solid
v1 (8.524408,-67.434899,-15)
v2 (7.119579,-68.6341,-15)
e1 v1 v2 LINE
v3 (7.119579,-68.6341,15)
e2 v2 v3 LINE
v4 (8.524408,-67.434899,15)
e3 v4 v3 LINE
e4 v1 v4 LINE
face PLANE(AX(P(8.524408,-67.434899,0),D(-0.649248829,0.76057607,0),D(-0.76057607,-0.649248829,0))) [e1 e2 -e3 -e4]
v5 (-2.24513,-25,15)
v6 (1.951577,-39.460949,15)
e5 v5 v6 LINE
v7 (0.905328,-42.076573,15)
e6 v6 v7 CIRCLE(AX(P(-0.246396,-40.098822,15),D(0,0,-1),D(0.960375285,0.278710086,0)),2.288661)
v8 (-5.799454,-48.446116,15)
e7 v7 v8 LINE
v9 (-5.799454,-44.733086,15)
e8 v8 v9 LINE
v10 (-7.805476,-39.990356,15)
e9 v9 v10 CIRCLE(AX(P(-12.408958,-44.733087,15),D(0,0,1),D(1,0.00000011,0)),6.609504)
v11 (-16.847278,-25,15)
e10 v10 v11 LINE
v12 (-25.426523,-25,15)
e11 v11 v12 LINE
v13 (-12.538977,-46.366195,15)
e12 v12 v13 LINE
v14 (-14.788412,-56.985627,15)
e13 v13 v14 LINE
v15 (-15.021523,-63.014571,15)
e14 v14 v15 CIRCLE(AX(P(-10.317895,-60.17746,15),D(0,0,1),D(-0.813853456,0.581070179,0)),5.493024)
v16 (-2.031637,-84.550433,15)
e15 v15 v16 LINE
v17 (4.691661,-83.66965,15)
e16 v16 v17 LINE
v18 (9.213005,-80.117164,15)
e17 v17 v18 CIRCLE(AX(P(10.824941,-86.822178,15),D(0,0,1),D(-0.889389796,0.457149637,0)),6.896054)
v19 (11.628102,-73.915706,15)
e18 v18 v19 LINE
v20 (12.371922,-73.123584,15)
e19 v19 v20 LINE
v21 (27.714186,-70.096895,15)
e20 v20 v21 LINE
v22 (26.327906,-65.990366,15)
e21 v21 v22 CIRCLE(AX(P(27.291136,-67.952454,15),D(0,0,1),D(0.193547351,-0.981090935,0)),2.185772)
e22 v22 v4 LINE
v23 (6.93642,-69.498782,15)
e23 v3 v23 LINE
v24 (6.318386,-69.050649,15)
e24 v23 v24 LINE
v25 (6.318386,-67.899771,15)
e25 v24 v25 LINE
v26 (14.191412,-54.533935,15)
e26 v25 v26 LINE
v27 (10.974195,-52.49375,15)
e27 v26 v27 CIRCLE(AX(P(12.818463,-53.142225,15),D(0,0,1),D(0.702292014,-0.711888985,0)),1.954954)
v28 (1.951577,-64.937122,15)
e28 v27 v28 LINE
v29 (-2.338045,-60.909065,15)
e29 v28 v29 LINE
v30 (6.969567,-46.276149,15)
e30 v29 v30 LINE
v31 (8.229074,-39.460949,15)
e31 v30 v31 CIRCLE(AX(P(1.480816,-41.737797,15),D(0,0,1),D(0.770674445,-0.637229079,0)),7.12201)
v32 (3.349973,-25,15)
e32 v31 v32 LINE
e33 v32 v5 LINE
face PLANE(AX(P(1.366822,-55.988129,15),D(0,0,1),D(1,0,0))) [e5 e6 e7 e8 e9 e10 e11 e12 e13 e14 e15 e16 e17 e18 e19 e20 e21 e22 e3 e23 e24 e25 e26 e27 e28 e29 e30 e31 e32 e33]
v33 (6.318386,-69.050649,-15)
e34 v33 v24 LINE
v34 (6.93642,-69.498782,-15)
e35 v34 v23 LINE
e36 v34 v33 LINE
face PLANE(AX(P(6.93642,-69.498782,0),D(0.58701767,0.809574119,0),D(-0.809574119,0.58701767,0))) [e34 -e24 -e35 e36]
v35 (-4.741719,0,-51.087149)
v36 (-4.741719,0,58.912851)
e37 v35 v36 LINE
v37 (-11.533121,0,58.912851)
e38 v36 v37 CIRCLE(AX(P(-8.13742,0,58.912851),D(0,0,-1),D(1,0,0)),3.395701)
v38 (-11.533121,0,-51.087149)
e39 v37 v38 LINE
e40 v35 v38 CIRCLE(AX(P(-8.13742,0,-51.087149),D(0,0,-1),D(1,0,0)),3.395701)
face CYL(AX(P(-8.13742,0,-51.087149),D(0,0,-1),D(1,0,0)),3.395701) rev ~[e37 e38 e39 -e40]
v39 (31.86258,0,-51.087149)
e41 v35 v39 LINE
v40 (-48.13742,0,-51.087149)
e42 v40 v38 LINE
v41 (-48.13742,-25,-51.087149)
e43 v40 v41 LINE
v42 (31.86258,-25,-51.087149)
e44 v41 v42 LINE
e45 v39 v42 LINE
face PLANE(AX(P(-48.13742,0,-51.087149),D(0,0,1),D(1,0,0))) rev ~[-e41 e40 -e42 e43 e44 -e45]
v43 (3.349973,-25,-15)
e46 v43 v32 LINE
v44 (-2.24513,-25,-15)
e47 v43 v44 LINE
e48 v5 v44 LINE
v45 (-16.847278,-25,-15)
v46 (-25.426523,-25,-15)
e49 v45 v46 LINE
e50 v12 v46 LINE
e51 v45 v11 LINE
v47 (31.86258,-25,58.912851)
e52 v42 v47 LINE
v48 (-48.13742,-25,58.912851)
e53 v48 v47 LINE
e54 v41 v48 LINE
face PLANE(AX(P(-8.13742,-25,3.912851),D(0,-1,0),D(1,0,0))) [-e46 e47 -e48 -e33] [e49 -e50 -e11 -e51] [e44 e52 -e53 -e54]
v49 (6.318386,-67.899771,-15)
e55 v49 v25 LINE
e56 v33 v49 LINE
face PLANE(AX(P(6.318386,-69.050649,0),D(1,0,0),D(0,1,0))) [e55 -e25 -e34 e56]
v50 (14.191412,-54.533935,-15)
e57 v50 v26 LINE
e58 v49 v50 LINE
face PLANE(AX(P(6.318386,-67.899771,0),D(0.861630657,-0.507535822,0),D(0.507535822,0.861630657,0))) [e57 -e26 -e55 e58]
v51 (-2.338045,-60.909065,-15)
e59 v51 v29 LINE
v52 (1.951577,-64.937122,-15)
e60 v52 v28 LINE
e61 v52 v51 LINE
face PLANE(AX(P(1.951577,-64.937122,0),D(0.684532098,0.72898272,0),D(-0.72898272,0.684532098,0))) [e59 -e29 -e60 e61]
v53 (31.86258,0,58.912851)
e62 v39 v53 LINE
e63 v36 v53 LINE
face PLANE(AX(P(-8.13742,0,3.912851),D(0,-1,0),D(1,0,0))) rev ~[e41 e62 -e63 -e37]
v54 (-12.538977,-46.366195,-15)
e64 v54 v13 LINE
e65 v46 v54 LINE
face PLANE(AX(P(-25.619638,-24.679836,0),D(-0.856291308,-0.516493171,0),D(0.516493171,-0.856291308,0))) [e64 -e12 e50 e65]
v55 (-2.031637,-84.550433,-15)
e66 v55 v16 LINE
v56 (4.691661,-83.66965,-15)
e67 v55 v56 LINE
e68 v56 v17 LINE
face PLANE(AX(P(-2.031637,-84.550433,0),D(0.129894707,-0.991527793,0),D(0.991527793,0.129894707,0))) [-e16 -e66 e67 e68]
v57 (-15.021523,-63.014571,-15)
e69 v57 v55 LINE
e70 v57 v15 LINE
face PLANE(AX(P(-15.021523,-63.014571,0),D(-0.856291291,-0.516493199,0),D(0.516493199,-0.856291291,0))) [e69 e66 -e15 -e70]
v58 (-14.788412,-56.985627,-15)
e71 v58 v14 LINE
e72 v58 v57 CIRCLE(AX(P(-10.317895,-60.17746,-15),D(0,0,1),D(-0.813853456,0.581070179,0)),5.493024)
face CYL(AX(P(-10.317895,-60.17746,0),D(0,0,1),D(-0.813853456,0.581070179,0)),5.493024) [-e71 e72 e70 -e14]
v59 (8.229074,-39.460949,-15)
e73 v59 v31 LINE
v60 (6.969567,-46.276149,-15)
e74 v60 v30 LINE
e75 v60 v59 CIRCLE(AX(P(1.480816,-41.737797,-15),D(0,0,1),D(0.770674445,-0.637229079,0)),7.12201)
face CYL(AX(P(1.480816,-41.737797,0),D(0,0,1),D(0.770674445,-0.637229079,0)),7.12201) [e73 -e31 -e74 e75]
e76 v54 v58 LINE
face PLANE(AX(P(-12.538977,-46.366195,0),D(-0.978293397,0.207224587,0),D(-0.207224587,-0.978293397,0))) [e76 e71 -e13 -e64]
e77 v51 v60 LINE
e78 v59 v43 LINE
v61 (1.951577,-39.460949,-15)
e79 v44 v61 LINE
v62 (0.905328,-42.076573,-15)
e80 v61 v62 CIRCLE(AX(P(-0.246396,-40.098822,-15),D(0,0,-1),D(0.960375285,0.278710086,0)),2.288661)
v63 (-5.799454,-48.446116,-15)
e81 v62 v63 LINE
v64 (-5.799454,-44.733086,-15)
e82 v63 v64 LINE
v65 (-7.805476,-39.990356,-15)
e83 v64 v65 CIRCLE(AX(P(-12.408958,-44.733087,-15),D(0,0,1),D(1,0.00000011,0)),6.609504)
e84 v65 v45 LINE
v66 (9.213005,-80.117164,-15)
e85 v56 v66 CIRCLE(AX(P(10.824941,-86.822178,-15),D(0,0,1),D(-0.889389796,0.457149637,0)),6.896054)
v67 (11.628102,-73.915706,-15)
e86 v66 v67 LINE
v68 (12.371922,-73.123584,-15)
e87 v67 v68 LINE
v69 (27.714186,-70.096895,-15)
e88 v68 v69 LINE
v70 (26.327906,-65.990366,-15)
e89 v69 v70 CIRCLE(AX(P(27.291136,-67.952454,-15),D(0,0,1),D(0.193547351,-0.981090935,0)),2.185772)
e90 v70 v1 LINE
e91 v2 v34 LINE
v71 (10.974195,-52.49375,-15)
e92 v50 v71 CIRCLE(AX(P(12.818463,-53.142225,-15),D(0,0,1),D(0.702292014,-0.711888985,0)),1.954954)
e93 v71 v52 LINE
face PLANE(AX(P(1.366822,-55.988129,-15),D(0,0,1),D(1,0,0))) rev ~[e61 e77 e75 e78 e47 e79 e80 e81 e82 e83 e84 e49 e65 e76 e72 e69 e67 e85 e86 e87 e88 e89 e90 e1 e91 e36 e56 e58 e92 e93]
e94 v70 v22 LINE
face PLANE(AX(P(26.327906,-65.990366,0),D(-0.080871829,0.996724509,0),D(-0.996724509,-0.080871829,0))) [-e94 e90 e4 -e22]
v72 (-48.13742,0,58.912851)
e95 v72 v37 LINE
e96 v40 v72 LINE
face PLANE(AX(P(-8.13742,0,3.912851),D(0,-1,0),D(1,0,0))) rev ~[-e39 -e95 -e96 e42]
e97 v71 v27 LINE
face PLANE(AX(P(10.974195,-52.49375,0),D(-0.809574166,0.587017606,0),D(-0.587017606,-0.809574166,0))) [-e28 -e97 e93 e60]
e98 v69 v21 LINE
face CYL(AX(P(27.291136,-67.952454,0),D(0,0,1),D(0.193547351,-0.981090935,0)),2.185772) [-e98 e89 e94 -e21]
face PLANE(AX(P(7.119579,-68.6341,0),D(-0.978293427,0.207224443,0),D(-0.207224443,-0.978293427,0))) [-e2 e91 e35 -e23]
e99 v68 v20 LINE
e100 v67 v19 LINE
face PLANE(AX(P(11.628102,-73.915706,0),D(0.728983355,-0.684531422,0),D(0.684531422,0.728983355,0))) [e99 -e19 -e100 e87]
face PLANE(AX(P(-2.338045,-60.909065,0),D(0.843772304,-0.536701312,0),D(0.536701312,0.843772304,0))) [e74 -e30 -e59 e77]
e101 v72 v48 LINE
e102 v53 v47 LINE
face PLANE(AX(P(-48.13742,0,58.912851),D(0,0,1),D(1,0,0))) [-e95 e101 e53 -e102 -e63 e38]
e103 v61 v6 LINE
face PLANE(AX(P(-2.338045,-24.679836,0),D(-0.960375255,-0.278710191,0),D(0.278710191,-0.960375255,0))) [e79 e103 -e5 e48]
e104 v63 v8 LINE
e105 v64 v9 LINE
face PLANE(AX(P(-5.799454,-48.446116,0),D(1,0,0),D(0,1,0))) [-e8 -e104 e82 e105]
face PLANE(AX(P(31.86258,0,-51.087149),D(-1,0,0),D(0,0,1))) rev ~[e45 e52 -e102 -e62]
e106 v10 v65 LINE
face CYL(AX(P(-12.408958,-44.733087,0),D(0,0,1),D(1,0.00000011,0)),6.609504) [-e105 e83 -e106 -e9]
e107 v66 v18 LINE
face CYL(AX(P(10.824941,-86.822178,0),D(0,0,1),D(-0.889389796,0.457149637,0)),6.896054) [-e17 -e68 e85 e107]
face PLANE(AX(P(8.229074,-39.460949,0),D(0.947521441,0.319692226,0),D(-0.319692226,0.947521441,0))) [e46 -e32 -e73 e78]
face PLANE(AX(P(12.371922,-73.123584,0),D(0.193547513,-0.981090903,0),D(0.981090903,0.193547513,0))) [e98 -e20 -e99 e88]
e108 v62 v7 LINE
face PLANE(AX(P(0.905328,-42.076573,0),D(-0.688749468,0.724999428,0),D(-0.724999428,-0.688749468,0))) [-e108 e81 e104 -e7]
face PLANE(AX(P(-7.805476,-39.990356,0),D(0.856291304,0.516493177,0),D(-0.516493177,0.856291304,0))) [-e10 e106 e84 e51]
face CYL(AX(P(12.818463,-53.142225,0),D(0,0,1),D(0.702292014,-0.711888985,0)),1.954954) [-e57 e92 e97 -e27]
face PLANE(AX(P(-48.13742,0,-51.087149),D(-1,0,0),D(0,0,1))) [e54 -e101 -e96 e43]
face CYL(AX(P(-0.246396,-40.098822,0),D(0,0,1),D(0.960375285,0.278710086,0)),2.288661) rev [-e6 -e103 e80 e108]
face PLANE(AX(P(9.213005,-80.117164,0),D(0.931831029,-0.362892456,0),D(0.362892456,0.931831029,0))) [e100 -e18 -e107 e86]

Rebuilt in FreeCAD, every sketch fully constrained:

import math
import FreeCAD as App
import Part
import Sketcher
from FreeCAD import Vector
Q = App.Units.Quantity

doc = App.newDocument("Part")
body = doc.addObject("PartDesign::Body", "Body")

# Sketch on XZ plane
sketch1 = doc.addObject("Sketcher::SketchObject", "Sketch")
body.addObject(sketch1)
sketch1.AttachmentSupport = (doc.XZ_Plane, [""])
sketch1.MapMode = "FlatFace"
sketch1.addGeometry(Part.LineSegment(Vector(-48, 59, 0), Vector(-48, -51, 0)), False)
sketch1.addGeometry(Part.LineSegment(Vector(-48, -51, 0), Vector(32, -51, 0)), False)
sketch1.addGeometry(Part.LineSegment(Vector(32, -51, 0), Vector(32, 59, 0)), False)
sketch1.addGeometry(Part.LineSegment(Vector(32, 59, 0), Vector(-48, 59, 0)), False)
sketch1.addConstraint(Sketcher.Constraint("Coincident", 0, 2, 1, 1))
sketch1.addConstraint(Sketcher.Constraint("Coincident", 1, 2, 2, 1))
sketch1.addConstraint(Sketcher.Constraint("Coincident", 2, 2, 3, 1))
sketch1.addConstraint(Sketcher.Constraint("Coincident", 3, 2, 0, 1))
sketch1.addConstraint(Sketcher.Constraint("Vertical", 0))
sketch1.addConstraint(Sketcher.Constraint("Horizontal", 1))
sketch1.addConstraint(Sketcher.Constraint("Vertical", 2))
sketch1.addConstraint(Sketcher.Constraint("Horizontal", 3))
sketch1.addConstraint(Sketcher.Constraint("DistanceX", 1, 1, 1, 2, Q("80 mm")))
sketch1.addConstraint(Sketcher.Constraint("DistanceY", 0, 2, 0, 1, Q("110 mm")))
sketch1.addConstraint(Sketcher.Constraint("DistanceX", 0, 2, -1, 1, Q("48.13742 mm")))
sketch1.addConstraint(Sketcher.Constraint("DistanceY", 0, 2, -1, 1, Q("51.087149 mm")))
pad1 = doc.addObject("PartDesign::Pad", "Pad")
body.addObject(pad1)
pad1.Profile = sketch1
pad1.Length = 25

# Sketch on XY plane
sketch2 = doc.addObject("Sketcher::SketchObject", "Sketch001")
body.addObject(sketch2)
sketch2.AttachmentSupport = (doc.XY_Plane, [""])
sketch2.MapMode = "FlatFace"
sketch2.AttachmentOffset = App.Placement(Vector(0, 0, -51.087149), App.Rotation())
sketch2.addGeometry(Part.Circle(Vector(-8.1, 0, 0), Vector(0, 0, 1), 3.4), False)
sketch2.addConstraint(Sketcher.Constraint("PointOnObject", 0, 3, -1))
sketch2.addConstraint(Sketcher.Constraint("Diameter", 0, Q("6.791402 mm")))
sketch2.addConstraint(Sketcher.Constraint("DistanceX", 0, 3, -1, 1, Q("8.13742 mm")))
pocket1 = doc.addObject("PartDesign::Pocket", "Pocket")
body.addObject(pocket1)
pocket1.Profile = sketch2
pocket1.Length = 122.9
pocket1.Reversed = True

# Sketch on XY plane
sketch3 = doc.addObject("Sketcher::SketchObject", "Sketch002")
body.addObject(sketch3)
sketch3.AttachmentSupport = (doc.XY_Plane, [""])
sketch3.MapMode = "FlatFace"
sketch3.addGeometry(Part.LineSegment(Vector(-25.619638, -24.679836, 0), Vector(-12.538977, -46.366195, 0)), False)
sketch3.addGeometry(Part.LineSegment(Vector(-12.538977, -46.366195, 0), Vector(-14.788412, -56.985627, 0)), False)
sketch3.addGeometry(Part.ArcOfCircle(Part.Circle(Vector(-10.317895, -60.17746, 0), Vector(0, 0, 1), 5.493024), math.radians(144.474151), math.radians(211.097336)), False)
sketch3.addGeometry(Part.LineSegment(Vector(-15.021523, -63.014571, 0), Vector(-2.031637, -84.550433, 0)), False)
sketch3.addGeometry(Part.LineSegment(Vector(-2.031637, -84.550433, 0), Vector(4.691661, -83.66965, 0)), False)
sketch3.addGeometry(Part.ArcOfCircle(Part.Circle(Vector(10.824941, -86.822178, 0), Vector(0, 0, 1), 6.896054), math.radians(152.796669), math.radians(463.517807)), False)
sketch3.addGeometry(Part.LineSegment(Vector(9.213005, -80.117164, 0), Vector(11.628102, -73.915706, 0)), False)
sketch3.addGeometry(Part.LineSegment(Vector(11.628102, -73.915706, 0), Vector(12.371922, -73.123584, 0)), False)
sketch3.addGeometry(Part.LineSegment(Vector(12.371922, -73.123584, 0), Vector(27.714186, -70.096895, 0)), False)
sketch3.addGeometry(Part.ArcOfCircle(Part.Circle(Vector(27.291136, -67.952454, 0), Vector(0, 0, 1), 2.185772), math.radians(-78.840124), math.radians(116.147379)), False)
sketch3.addGeometry(Part.LineSegment(Vector(26.327906, -65.990366, 0), Vector(8.524408, -67.434899, 0)), False)
sketch3.addGeometry(Part.LineSegment(Vector(8.524408, -67.434899, 0), Vector(7.119579, -68.6341, 0)), False)
sketch3.addGeometry(Part.LineSegment(Vector(7.119579, -68.6341, 0), Vector(6.93642, -69.498782, 0)), False)
sketch3.addGeometry(Part.LineSegment(Vector(6.93642, -69.498782, 0), Vector(6.318386, -69.050649, 0)), False)
sketch3.addGeometry(Part.LineSegment(Vector(6.318386, -69.050649, 0), Vector(6.318386, -67.899771, 0)), False)
sketch3.addGeometry(Part.LineSegment(Vector(6.318386, -67.899771, 0), Vector(14.191412, -54.533935, 0)), False)
sketch3.addGeometry(Part.ArcOfCircle(Part.Circle(Vector(12.818463, -53.142225, 0), Vector(0, 0, 1), 1.954954), math.radians(-45.388817), math.radians(160.627497)), False)
sketch3.addGeometry(Part.LineSegment(Vector(10.974195, -52.49375, 0), Vector(1.951577, -64.937122, 0)), False)
sketch3.addGeometry(Part.LineSegment(Vector(1.951577, -64.937122, 0), Vector(-2.338045, -60.909065, 0)), False)
sketch3.addGeometry(Part.LineSegment(Vector(-2.338045, -60.909065, 0), Vector(6.969567, -46.276149, 0)), False)
sketch3.addGeometry(Part.ArcOfCircle(Part.Circle(Vector(1.480816, -41.737797, 0), Vector(0, 0, 1), 7.12201), math.radians(-39.585508), math.radians(18.644289)), False)
sketch3.addGeometry(Part.LineSegment(Vector(8.229074, -39.460949, 0), Vector(3.24195, -24.679836, 0)), False)
sketch3.addGeometry(Part.LineSegment(Vector(3.24195, -24.679836, 0), Vector(-2.338045, -24.679836, 0)), False)
sketch3.addGeometry(Part.LineSegment(Vector(-2.338045, -24.679836, 0), Vector(1.951577, -39.460949, 0)), False)
sketch3.addGeometry(Part.ArcOfCircle(Part.Circle(Vector(-0.246396, -40.098822, 0), Vector(0, 0, 1), 2.288661), math.radians(-59.78603), math.radians(16.183234)), False)
sketch3.addGeometry(Part.LineSegment(Vector(0.905328, -42.076573, 0), Vector(-5.799454, -48.446116, 0)), False)
sketch3.addGeometry(Part.LineSegment(Vector(-5.799454, -48.446116, 0), Vector(-5.799454, -44.733086, 0)), False)
sketch3.addGeometry(Part.ArcOfCircle(Part.Circle(Vector(-12.408958, -44.733087, 0), Vector(0, 0, 1), 6.609504), math.radians(0.000006), math.radians(45.853586)), False)
sketch3.addGeometry(Part.LineSegment(Vector(-7.805476, -39.990356, 0), Vector(-17.040393, -24.679836, 0)), False)
sketch3.addGeometry(Part.LineSegment(Vector(-17.040393, -24.679836, 0), Vector(-25.619638, -24.679836, 0)), False)
sketch3.addConstraint(Sketcher.Constraint("Coincident", 0, 2, 1, 1))
sketch3.addConstraint(Sketcher.Constraint("Coincident", 1, 2, 2, 1))
sketch3.addConstraint(Sketcher.Constraint("Coincident", 2, 2, 3, 1))
sketch3.addConstraint(Sketcher.Constraint("Coincident", 3, 2, 4, 1))
sketch3.addConstraint(Sketcher.Constraint("Coincident", 4, 2, 5, 1))
sketch3.addConstraint(Sketcher.Constraint("Coincident", 5, 2, 6, 1))
sketch3.addConstraint(Sketcher.Constraint("Coincident", 6, 2, 7, 1))
sketch3.addConstraint(Sketcher.Constraint("Coincident", 7, 2, 8, 1))
sketch3.addConstraint(Sketcher.Constraint("Coincident", 8, 2, 9, 1))
sketch3.addConstraint(Sketcher.Constraint("Coincident", 9, 2, 10, 1))
sketch3.addConstraint(Sketcher.Constraint("Coincident", 10, 2, 11, 1))
sketch3.addConstraint(Sketcher.Constraint("Coincident", 11, 2, 12, 1))
sketch3.addConstraint(Sketcher.Constraint("Coincident", 12, 2, 13, 1))
sketch3.addConstraint(Sketcher.Constraint("Coincident", 13, 2, 14, 1))
sketch3.addConstraint(Sketcher.Constraint("Coincident", 14, 2, 15, 1))
sketch3.addConstraint(Sketcher.Constraint("Coincident", 15, 2, 16, 1))
sketch3.addConstraint(Sketcher.Constraint("Coincident", 16, 2, 17, 1))
sketch3.addConstraint(Sketcher.Constraint("Coincident", 17, 2, 18, 1))
sketch3.addConstraint(Sketcher.Constraint("Coincident", 18, 2, 19, 1))
sketch3.addConstraint(Sketcher.Constraint("Coincident", 19, 2, 20, 1))
sketch3.addConstraint(Sketcher.Constraint("Coincident", 20, 2, 21, 1))
sketch3.addConstraint(Sketcher.Constraint("Coincident", 21, 2, 22, 1))
sketch3.addConstraint(Sketcher.Constraint("Coincident", 22, 2, 23, 1))
sketch3.addConstraint(Sketcher.Constraint("Coincident", 23, 2, 24, 2))
sketch3.addConstraint(Sketcher.Constraint("Coincident", 24, 1, 25, 1))
sketch3.addConstraint(Sketcher.Constraint("Coincident", 25, 2, 26, 1))
sketch3.addConstraint(Sketcher.Constraint("Coincident", 26, 2, 27, 1))
sketch3.addConstraint(Sketcher.Constraint("Coincident", 27, 2, 28, 1))
sketch3.addConstraint(Sketcher.Constraint("Coincident", 28, 2, 29, 1))
sketch3.addConstraint(Sketcher.Constraint("Coincident", 29, 2, 0, 1))
sketch3.addConstraint(Sketcher.Constraint("Vertical", 14))
sketch3.addConstraint(Sketcher.Constraint("Horizontal", 22))
sketch3.addConstraint(Sketcher.Constraint("Vertical", 26))
sketch3.addConstraint(Sketcher.Constraint("Horizontal", 29))
sketch3.addConstraint(Sketcher.Constraint("Radius", 20, Q("7.12201 mm")))
sketch3.addConstraint(Sketcher.Constraint("Radius", 24, Q("2.288661 mm")))
sketch3.addConstraint(Sketcher.Constraint("Radius", 2, Q("5.493024 mm")))
sketch3.addConstraint(Sketcher.Constraint("Radius", 5, Q("6.896054 mm")))
sketch3.addConstraint(Sketcher.Constraint("Radius", 9, Q("2.185772 mm")))
sketch3.addConstraint(Sketcher.Constraint("Radius", 16, Q("1.954954 mm")))
sketch3.addConstraint(Sketcher.Constraint("Radius", 27, Q("6.609504 mm")))
sketch3.addConstraint(Sketcher.Constraint("DistanceX", 17, 2, 11, 2, Q("5.168002 mm")))
sketch3.addConstraint(Sketcher.Constraint("DistanceY", 14, 1, 14, 2, Q("1.150878 mm")))
sketch3.addConstraint(Sketcher.Constraint("DistanceY", 26, 1, 26, 2, Q("3.71303 mm")))
sketch3.addConstraint(Sketcher.Constraint("DistanceY", 10, 2, -1, 1, Q("67.434899 mm")))
sketch3.addConstraint(Sketcher.Constraint("DistanceY", 11, 2, -1, 1, Q("68.6341 mm")))
sketch3.addConstraint(Sketcher.Constraint("DistanceX", 2, 3, 24, 3, Q("10.071499 mm")))
sketch3.addConstraint(Sketcher.Constraint("DistanceX", 12, 2, 7, 2, Q("5.435502 mm")))
sketch3.addConstraint(Sketcher.Constraint("DistanceY", 7, 2, 12, 2, Q("3.624802 mm")))
sketch3.addConstraint(Sketcher.Constraint("DistanceY", 16, 2, 19, 2, Q("6.217601 mm")))
sketch3.addConstraint(Sketcher.Constraint("DistanceY", 19, 2, 20, 2, Q("6.8152 mm")))
sketch3.addConstraint(Sketcher.Constraint("DistanceY", 19, 2, 23, 2, Q("6.8152 mm")))
sketch3.addConstraint(Sketcher.Constraint("DistanceX", 0, 2, 27, 2, Q("4.733501 mm")))
sketch3.addConstraint(Sketcher.Constraint("Distance", 1, Q("10.855058 mm")))
sketch3.addConstraint(Sketcher.Constraint("Distance", 3, Q("25.150159 mm")))
sketch3.addConstraint(Sketcher.Constraint("Distance", 6, Q("6.655131 mm")))
sketch3.addConstraint(Sketcher.Constraint("Distance", 7, Q("1.086612 mm")))
sketch3.addConstraint(Sketcher.Constraint("Distance", 11, Q("1.847059 mm")))
sketch3.addConstraint(Sketcher.Constraint("Distance", 17, Q("15.370268 mm")))
sketch3.addConstraint(Sketcher.Constraint("DistanceX", 22, 2, 22, 1, Q("5.579995 mm")))
sketch3.addConstraint(Sketcher.Constraint("DistanceX", 29, 2, 29, 1, Q("8.579245 mm")))
sketch3.addConstraint(Sketcher.Constraint("DistanceY", 2, 3, -1, 1, Q("60.17746 mm")))
sketch3.addConstraint(Sketcher.Constraint("DistanceX", -1, 1, 5, 3, Q("10.824941 mm")))
sketch3.addConstraint(Sketcher.Constraint("DistanceY", 5, 3, -1, 1, Q("86.822178 mm")))
sketch3.addConstraint(Sketcher.Constraint("DistanceY", 24, 3, -1, 1, Q("40.098822 mm")))
sketch3.addConstraint(Sketcher.Constraint("DistanceX", 1, 2, -1, 1, Q("14.788412 mm")))
sketch3.addConstraint(Sketcher.Constraint("DistanceY", 2, 2, -1, 1, Q("63.014571 mm")))
sketch3.addConstraint(Sketcher.Constraint("DistanceX", -1, 1, 4, 2, Q("4.691661 mm")))
sketch3.addConstraint(Sketcher.Constraint("DistanceX", -1, 1, 11, 2, Q("7.119579 mm")))
sketch3.addConstraint(Sketcher.Constraint("DistanceX", -1, 1, 12, 2, Q("6.93642 mm")))
sketch3.addConstraint(Sketcher.Constraint("DistanceY", 13, 2, -1, 1, Q("69.050649 mm")))
sketch3.addConstraint(Sketcher.Constraint("DistanceY", 16, 2, -1, 1, Q("52.49375 mm")))
sketch3.addConstraint(Sketcher.Constraint("DistanceX", -1, 1, 21, 2, Q("3.24195 mm")))
sketch3.addConstraint(Sketcher.Constraint("DistanceX", 2, 3, 9, 3, Q("37.609031 mm")))
sketch3.addConstraint(Sketcher.Constraint("DistanceY", 9, 3, 16, 3, Q("14.810229 mm")))
sketch3.addConstraint(Sketcher.Constraint("DistanceX", 2, 3, 16, 3, Q("23.136359 mm")))
sketch3.addConstraint(Sketcher.Constraint("DistanceX", 2, 3, 20, 3, Q("11.798711 mm")))
sketch3.addConstraint(Sketcher.Constraint("DistanceY", 5, 3, 20, 3, Q("45.084381 mm")))
sketch3.addConstraint(Sketcher.Constraint("DistanceY", 9, 3, 24, 3, Q("27.853632 mm")))
sketch3.addConstraint(Sketcher.Constraint("DistanceX", 27, 3, 24, 3, Q("12.162561 mm")))
sketch3.addConstraint(Sketcher.Constraint("DistanceY", 27, 3, 20, 3, Q("2.995289 mm")))
sketch3.addConstraint(Sketcher.Constraint("DistanceX", 0, 2, 27, 3, Q("0.130019 mm")))
sketch3.addConstraint(Sketcher.Constraint("DistanceY", 0, 2, 27, 3, Q("1.633108 mm")))
sketch3.addConstraint(Sketcher.Constraint("DistanceX", 2, 3, 3, 2, Q("8.286258 mm")))
sketch3.addConstraint(Sketcher.Constraint("DistanceY", 3, 2, 5, 2, Q("4.433269 mm")))
sketch3.addConstraint(Sketcher.Constraint("DistanceY", 5, 2, 6, 2, Q("6.201458 mm")))
sketch3.addConstraint(Sketcher.Constraint("DistanceX", 9, 3, 8, 2, Q("0.42305 mm")))
sketch3.addConstraint(Sketcher.Constraint("DistanceX", 9, 2, 9, 3, Q("0.96323 mm")))
sketch3.addConstraint(Sketcher.Constraint("DistanceX", 13, 2, 10, 2, Q("2.206022 mm")))
sketch3.addConstraint(Sketcher.Constraint("DistanceX", 16, 3, 15, 2, Q("1.372949 mm")))
sketch3.addConstraint(Sketcher.Constraint("DistanceX", 18, 2, 17, 2, Q("4.289622 mm")))
sketch3.addConstraint(Sketcher.Constraint("DistanceY", 20, 3, 21, 2, Q("17.057961 mm")))
sketch3.addConstraint(Sketcher.Constraint("DistanceX", 24, 1, 20, 3, Q("0.575488 mm")))
sketch3.addConstraint(Sketcher.Constraint("DistanceY", 25, 2, 0, 2, Q("2.079921 mm")))
sketch3.addConstraint(Sketcher.Constraint("DistanceX", 28, 2, 22, 2, Q("14.702348 mm")))
sketch3.addConstraint(Sketcher.Constraint("DistanceY", 27, 2, 28, 2, Q("15.31052 mm")))
sketch3.addConstraint(Sketcher.Constraint("Distance", 18, Q("5.884395 mm")))
pad2 = doc.addObject("PartDesign::Pad", "Pad001")
body.addObject(pad2)
pad2.Profile = sketch3
pad2.Length = 30
pad2.Midplane = True

doc.recompute()
